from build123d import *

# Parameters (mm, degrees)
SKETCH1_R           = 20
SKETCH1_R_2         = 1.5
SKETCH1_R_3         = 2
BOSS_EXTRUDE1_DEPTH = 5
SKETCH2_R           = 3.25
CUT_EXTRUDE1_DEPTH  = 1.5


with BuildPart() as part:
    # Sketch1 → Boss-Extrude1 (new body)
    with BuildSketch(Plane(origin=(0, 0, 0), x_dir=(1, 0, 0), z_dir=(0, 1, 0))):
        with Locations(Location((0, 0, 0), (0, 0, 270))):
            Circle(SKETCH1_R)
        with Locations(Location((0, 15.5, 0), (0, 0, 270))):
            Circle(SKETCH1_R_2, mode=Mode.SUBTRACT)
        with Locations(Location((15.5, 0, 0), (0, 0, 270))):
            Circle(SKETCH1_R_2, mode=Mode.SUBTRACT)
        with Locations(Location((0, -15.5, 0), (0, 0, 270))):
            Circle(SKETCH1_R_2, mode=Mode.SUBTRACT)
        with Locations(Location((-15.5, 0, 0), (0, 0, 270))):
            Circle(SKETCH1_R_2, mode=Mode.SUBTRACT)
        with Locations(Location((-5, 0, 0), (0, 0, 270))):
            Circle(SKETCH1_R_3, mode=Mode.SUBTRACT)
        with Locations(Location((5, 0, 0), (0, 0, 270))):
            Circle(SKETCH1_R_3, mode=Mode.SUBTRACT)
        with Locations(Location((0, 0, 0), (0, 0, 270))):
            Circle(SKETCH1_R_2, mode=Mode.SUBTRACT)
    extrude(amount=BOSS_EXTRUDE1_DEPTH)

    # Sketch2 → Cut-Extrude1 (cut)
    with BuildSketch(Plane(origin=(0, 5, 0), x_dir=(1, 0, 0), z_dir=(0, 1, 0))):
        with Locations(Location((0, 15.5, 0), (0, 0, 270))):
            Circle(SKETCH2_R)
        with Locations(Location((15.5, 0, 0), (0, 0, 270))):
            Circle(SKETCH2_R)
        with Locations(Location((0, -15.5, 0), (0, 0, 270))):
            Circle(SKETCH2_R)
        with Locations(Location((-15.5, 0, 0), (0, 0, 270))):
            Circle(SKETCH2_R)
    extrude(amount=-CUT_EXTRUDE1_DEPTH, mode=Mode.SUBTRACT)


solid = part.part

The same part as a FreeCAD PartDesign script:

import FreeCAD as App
import Part
import Sketcher
from FreeCAD import Vector

doc = App.newDocument("Part")
body = doc.addObject("PartDesign::Body", "Body")

# Sketch on XZ plane
sketch1 = doc.addObject("Sketcher::SketchObject", "Sketch")
body.addObject(sketch1)
sketch1.AttachmentSupport = (doc.XZ_Plane, [""])
sketch1.MapMode = "FlatFace"
sketch1.addGeometry([
    Part.Circle(Vector(0, 0, 0), Vector(0, 0, 1), 20),  # 0
    Part.Circle(Vector(0, -15.5, 0), Vector(0, 0, 1), 1.5),  # 1
    Part.Circle(Vector(-15.5, 0, 0), Vector(0, 0, 1), 1.5),  # 2
    Part.Circle(Vector(-5, 0, 0), Vector(0, 0, 1), 2),  # 3
    Part.Circle(Vector(15.5, 0, 0), Vector(0, 0, 1), 1.5),  # 4
    Part.Circle(Vector(0, 0, 0), Vector(0, 0, 1), 1.5),  # 5
    Part.Circle(Vector(5, 0, 0), Vector(0, 0, 1), 2),  # 6
    Part.Circle(Vector(0, 15.5, 0), Vector(0, 0, 1), 1.5),  # 7
], False)
sketch1.addConstraint([
    Sketcher.Constraint("Coincident", 0, 3, -1, 1),
    Sketcher.Constraint("Coincident", 5, 3, -1, 1),
    Sketcher.Constraint("Equal", 1, 2),
    Sketcher.Constraint("Equal", 2, 4),
    Sketcher.Constraint("Equal", 4, 5),
    Sketcher.Constraint("Equal", 3, 6),
    Sketcher.Constraint("Equal", 5, 7),
    Sketcher.Constraint("Symmetric", 2, 3, 4, 3, -1, 1),
    Sketcher.Constraint("Symmetric", 3, 3, 6, 3, -1, 1),
    Sketcher.Constraint("Symmetric", 1, 3, 7, 3, -1, 1),
    Sketcher.Constraint("PointOnObject", 1, 3, -2),
    Sketcher.Constraint("PointOnObject", 2, 3, -1),
    Sketcher.Constraint("PointOnObject", 3, 3, -1),
    Sketcher.Constraint("Diameter", 0, 40.0),
    Sketcher.Constraint("Diameter", 1, 3.0),
    Sketcher.Constraint("Diameter", 3, 4.0),
    Sketcher.Constraint("DistanceX", 3, 3, -1, 1, 5.0),
    Sketcher.Constraint("DistanceX", 2, 3, 4, 3, 31.0),
    Sketcher.Constraint("DistanceY", 1, 3, -1, 1, 15.5),
])
pad1 = doc.addObject("PartDesign::Pad", "Pad")
body.addObject(pad1)
pad1.Profile = sketch1
pad1.Length = 5
pad1.Reversed = True

# Sketch on XZ plane
sketch2 = doc.addObject("Sketcher::SketchObject", "Sketch001")
body.addObject(sketch2)
sketch2.AttachmentSupport = (doc.XZ_Plane, [""])
sketch2.MapMode = "FlatFace"
sketch2.AttachmentOffset = App.Placement(Vector(0, 0, -5), App.Rotation())
sketch2.addGeometry([
    Part.Circle(Vector(0, -15.5, 0), Vector(0, 0, 1), 3.25),
    Part.Circle(Vector(15.5, 0, 0), Vector(0, 0, 1), 3.25),
    Part.Circle(Vector(0, 15.5, 0), Vector(0, 0, 1), 3.25),
    Part.Circle(Vector(-15.5, 0, 0), Vector(0, 0, 1), 3.25),
], False)
sketch2.addConstraint([
    Sketcher.Constraint("Equal", 0, 1),
    Sketcher.Constraint("Equal", 1, 2),
    Sketcher.Constraint("Equal", 2, 3),
    Sketcher.Constraint("Symmetric", 0, 3, 2, 3, -1, 1),
    Sketcher.Constraint("Symmetric", 1, 3, 3, 3, -1, 1),
    Sketcher.Constraint("PointOnObject", 0, 3, -2),
    Sketcher.Constraint("PointOnObject", 1, 3, -1),
    Sketcher.Constraint("Diameter", 0, 6.5),
    Sketcher.Constraint("DistanceY", 0, 3, 2, 3, 31.0),
    Sketcher.Constraint("DistanceX", 3, 3, 1, 3, 31.0),
])
pocket1 = doc.addObject("PartDesign::Pocket", "Pocket")
body.addObject(pocket1)
pocket1.Profile = sketch2
pocket1.Length = 1.5
pocket1.Reversed = True

doc.recompute()
